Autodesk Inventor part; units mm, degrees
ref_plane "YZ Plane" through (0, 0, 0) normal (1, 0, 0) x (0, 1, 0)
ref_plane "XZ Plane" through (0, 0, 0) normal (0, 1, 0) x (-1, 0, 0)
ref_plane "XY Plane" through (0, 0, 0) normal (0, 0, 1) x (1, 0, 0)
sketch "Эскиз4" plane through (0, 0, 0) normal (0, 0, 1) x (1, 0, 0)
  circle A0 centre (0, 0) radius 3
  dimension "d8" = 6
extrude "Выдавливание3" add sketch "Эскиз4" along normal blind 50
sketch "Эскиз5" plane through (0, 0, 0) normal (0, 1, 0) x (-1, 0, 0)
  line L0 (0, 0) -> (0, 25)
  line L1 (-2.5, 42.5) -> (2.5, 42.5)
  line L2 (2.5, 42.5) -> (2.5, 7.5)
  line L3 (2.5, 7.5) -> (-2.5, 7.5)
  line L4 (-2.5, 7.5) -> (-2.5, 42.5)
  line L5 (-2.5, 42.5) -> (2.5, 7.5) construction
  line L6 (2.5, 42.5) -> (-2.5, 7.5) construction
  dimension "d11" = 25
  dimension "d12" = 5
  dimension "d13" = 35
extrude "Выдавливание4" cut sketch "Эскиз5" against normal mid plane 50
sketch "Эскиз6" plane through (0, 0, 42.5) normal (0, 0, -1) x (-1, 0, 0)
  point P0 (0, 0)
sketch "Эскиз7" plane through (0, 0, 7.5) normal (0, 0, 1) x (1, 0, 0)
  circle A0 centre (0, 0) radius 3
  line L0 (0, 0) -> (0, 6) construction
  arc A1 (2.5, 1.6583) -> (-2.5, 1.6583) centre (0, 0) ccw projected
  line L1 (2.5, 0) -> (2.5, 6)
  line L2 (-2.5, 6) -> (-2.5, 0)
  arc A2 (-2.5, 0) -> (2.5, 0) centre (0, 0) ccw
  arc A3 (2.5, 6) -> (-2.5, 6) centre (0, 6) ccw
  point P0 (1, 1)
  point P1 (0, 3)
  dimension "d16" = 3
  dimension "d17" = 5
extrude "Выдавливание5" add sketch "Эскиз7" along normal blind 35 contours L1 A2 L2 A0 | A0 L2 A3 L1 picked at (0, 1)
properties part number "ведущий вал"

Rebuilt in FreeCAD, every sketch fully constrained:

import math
import FreeCAD as App
import Part
import Sketcher

V = App.Vector
Q = App.Units.Quantity


def add_polygon(sketch, points):
    """Adds a closed chain of lines whose ends are joined by coincident constraints."""
    first, n = sketch.GeometryCount, len(points)
    for a, b in zip(points, points[1:] + points[:1]):
        sketch.addGeometry(Part.LineSegment(App.Vector(*a, 0), App.Vector(*b, 0)), False)
    for i in range(n):
        sketch.addConstraint(Sketcher.Constraint("Coincident", first + i, 2, first + (i + 1) % n, 1))

doc = App.newDocument("Part")
body = doc.addObject("PartDesign::Body", "Body")

sketch1 = doc.addObject("Sketcher::SketchObject", "Sketch")
body.addObject(sketch1)
sketch1.AttachmentSupport = (doc.XY_Plane, [""])
sketch1.MapMode = "FlatFace"
sketch1.addGeometry(Part.Circle(V(0, 0, 0), V(0, 0, 1), 3), False)
sketch1.addConstraint([
    Sketcher.Constraint("Coincident", 0, 3, -1, 1),
    Sketcher.Constraint("Diameter", 0, Q("6 mm")),
])
pad1 = doc.addObject("PartDesign::Pad", "Pad")
body.addObject(pad1)
pad1.Profile = sketch1
pad1.Length = 50

sketch2 = doc.addObject("Sketcher::SketchObject", "Sketch001")
body.addObject(sketch2)
sketch2.AttachmentSupport = (doc.XZ_Plane, [""])
sketch2.MapMode = "FlatFace"
add_polygon(sketch2, [(-2.5, 42.5), (2.5, 42.5), (2.5, 7.5), (-2.5, 7.5)])
sketch2.addConstraint([
    Sketcher.Constraint("Horizontal", 0),
    Sketcher.Constraint("Vertical", 1),
    Sketcher.Constraint("Horizontal", 2),
    Sketcher.Constraint("Vertical", 3),
    Sketcher.Constraint("DistanceX", 0, 1, 0, 2, Q("5 mm")),
    Sketcher.Constraint("DistanceY", 1, 2, 1, 1, Q("35 mm")),
    Sketcher.Constraint("DistanceX", -1, 1, 0, 2, Q("2.5 mm")),
    Sketcher.Constraint("DistanceY", -1, 1, 0, 2, Q("42.5 mm")),
])
pocket1 = doc.addObject("PartDesign::Pocket", "Pocket")
body.addObject(pocket1)
pocket1.Profile = sketch2
pocket1.Length = 50
pocket1.Midplane = True

sketch3 = doc.addObject("Sketcher::SketchObject", "Sketch002")
body.addObject(sketch3)
sketch3.AttachmentSupport = (doc.XY_Plane, [""])
sketch3.MapMode = "FlatFace"
sketch3.AttachmentOffset = App.Placement(V(0, 0, 7.5), App.Rotation())
sketch3.addGeometry([
    Part.LineSegment(V(2.5, 0, 0), V(2.5, 6, 0)),
    Part.ArcOfCircle(Part.Circle(V(0, 6, 0), V(0, 0, 1), 2.5), math.radians(0), math.radians(180)),
    Part.LineSegment(V(-2.5, 6, 0), V(-2.5, 0, 0)),
    Part.ArcOfCircle(Part.Circle(V(0, 0, 0), V(0, 0, 1), 2.5), math.radians(180), math.radians(360)),
], False)
sketch3.addConstraint([
    Sketcher.Constraint("Tangent", 0, 2, 1, 1),
    Sketcher.Constraint("Tangent", 1, 2, 2, 1),
    Sketcher.Constraint("Tangent", 2, 2, 3, 1),
    Sketcher.Constraint("Tangent", 3, 2, 0, 1),
    Sketcher.Constraint("Vertical", 0),
    Sketcher.Constraint("Vertical", 2),
    Sketcher.Constraint("Coincident", 3, 3, -1, 1),
    Sketcher.Constraint("Radius", 1, Q("2.5 mm")),
    Sketcher.Constraint("DistanceY", 0, 1, 0, 2, Q("6 mm")),
])
pad2 = doc.addObject("PartDesign::Pad", "Pad001")
body.addObject(pad2)
pad2.Profile = sketch3
pad2.Length = 35

doc.recompute()
